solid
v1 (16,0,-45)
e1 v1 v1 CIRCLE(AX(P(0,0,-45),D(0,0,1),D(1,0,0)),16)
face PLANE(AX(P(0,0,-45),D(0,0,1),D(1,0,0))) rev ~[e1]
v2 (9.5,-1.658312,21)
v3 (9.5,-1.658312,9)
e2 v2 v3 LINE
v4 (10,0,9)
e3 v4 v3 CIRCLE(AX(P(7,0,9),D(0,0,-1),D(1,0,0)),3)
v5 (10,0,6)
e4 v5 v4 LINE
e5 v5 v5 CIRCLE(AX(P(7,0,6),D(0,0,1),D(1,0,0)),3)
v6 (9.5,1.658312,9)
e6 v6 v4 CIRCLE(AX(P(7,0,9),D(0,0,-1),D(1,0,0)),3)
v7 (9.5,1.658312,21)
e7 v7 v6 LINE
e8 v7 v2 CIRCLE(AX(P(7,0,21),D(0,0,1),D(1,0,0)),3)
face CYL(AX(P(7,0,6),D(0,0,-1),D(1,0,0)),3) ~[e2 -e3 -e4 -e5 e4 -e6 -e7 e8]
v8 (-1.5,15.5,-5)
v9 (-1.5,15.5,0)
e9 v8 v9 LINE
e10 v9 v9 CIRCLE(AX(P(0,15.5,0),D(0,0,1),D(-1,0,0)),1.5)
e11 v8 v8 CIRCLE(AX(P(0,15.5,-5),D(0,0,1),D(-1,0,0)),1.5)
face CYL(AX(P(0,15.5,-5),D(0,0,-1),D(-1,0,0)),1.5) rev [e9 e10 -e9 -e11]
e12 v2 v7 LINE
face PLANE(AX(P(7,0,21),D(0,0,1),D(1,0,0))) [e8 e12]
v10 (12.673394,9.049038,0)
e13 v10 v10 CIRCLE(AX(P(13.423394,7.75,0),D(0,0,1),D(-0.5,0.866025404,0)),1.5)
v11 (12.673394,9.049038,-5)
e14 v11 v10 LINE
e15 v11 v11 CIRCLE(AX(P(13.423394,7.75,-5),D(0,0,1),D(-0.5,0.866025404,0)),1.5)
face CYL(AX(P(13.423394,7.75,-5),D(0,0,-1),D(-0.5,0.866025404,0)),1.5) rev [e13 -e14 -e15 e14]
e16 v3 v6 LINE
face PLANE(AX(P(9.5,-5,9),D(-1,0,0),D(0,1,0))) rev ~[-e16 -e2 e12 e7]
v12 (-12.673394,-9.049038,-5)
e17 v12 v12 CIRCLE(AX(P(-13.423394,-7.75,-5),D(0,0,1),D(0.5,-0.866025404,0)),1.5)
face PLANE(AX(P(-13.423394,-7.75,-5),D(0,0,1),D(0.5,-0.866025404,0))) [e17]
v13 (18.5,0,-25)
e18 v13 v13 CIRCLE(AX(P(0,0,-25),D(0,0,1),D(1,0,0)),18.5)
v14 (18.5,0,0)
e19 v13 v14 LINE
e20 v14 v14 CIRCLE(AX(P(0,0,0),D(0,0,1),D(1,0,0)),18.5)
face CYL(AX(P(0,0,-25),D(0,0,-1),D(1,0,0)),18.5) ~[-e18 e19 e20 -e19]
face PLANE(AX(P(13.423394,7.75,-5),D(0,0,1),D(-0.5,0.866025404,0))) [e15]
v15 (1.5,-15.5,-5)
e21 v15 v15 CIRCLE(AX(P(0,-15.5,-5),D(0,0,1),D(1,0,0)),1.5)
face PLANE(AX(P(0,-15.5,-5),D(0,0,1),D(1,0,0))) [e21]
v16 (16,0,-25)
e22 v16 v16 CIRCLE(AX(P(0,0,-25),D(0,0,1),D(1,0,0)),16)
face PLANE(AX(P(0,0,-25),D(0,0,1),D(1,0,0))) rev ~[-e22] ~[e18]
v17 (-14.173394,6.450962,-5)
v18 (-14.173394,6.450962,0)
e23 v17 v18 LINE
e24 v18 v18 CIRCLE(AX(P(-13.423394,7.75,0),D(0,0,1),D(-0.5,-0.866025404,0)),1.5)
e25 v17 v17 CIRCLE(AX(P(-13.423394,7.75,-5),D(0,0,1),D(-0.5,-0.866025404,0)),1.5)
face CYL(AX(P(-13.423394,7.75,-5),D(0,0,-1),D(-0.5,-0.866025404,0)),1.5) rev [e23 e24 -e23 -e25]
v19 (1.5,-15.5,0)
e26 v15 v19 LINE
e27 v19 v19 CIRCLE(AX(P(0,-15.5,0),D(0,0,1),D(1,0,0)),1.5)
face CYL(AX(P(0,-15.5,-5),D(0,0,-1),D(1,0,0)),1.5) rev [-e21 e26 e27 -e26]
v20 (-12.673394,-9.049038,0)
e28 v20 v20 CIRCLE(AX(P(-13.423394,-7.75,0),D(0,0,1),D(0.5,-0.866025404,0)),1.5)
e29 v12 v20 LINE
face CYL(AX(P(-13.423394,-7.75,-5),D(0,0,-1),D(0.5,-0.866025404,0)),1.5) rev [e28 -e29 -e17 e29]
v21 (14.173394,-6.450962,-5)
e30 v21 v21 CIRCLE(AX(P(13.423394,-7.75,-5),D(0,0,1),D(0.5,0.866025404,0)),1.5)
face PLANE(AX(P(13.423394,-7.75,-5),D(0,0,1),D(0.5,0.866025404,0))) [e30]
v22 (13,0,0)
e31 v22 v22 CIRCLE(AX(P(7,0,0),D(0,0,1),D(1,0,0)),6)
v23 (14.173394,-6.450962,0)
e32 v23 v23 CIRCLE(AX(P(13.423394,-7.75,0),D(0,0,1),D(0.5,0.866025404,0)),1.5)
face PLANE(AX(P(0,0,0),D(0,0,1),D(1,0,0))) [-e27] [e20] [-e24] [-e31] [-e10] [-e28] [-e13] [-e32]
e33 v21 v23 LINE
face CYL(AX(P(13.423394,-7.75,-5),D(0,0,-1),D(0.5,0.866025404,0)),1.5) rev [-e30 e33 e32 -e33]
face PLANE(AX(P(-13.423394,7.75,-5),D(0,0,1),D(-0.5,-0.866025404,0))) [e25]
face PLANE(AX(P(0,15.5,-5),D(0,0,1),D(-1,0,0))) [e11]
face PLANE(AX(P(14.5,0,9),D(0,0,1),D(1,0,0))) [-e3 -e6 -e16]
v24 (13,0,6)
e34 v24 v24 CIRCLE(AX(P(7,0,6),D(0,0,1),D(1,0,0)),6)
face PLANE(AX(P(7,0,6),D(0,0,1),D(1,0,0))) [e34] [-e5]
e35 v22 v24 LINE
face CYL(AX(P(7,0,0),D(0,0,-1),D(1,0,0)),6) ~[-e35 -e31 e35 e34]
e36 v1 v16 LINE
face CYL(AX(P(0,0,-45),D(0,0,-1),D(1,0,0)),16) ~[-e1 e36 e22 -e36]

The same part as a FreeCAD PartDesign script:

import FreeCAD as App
import Part
import Sketcher

V = App.Vector
Q = App.Units.Quantity

doc = App.newDocument("Part")
params = doc.addObject("Spreadsheet::Sheet", "Params")
for row, (alias, value) in enumerate([
    ("sketch1_width", "10 mm"),
    ("pad1_length", "12 mm"),
    ("sketch2_diameter", "3 mm"),
    ("pad2_length", "5 mm"),
    ("sketch3_diameter", "37 mm"),
    ("pad3_length", "25 mm"),
    ("sketch4_diameter", "12 mm"),
    ("pad4_length", "6 mm"),
    ("sketch5_diameter", "6 mm"),
    ("pad5_length", "15 mm"),
    ("sketch6_diameter", "32 mm"),
    ("pad6_length", "20 mm"),
], start=1):
    params.set(f"A{row}", alias)
    params.set(f"B{row}", "=" + value)
    params.setAlias(f"B{row}", alias)

body = doc.addObject("PartDesign::Body", "Body")

# Sketch on XY plane
sketch1 = body.newObject("Sketcher::SketchObject", "Sketch")
sketch1.AttachmentSupport = (doc.getObject("XY_Plane"), [""])
sketch1.MapMode = "FlatFace"
sketch1.AttachmentOffset = App.Placement(V(0, 0, 9), App.Rotation())
sketch1.addGeometry(Part.LineSegment(V(9.5, 5, 0), V(9.5, -5, 0)), False)
sketch1.addGeometry(Part.LineSegment(V(9.5, -5, 0), V(19.5, -5, 0)), False)
sketch1.addGeometry(Part.LineSegment(V(19.5, -5, 0), V(19.5, 5, 0)), False)
sketch1.addGeometry(Part.LineSegment(V(19.5, 5, 0), V(9.5, 5, 0)), False)
sketch1.addConstraint(Sketcher.Constraint("Coincident", 0, 2, 1, 1))
sketch1.addConstraint(Sketcher.Constraint("Coincident", 1, 2, 2, 1))
sketch1.addConstraint(Sketcher.Constraint("Coincident", 2, 2, 3, 1))
sketch1.addConstraint(Sketcher.Constraint("Coincident", 3, 2, 0, 1))
sketch1.addConstraint(Sketcher.Constraint("Vertical", 0))
sketch1.addConstraint(Sketcher.Constraint("Horizontal", 1))
sketch1.addConstraint(Sketcher.Constraint("Vertical", 2))
sketch1.addConstraint(Sketcher.Constraint("Horizontal", 3))
sketch1.addConstraint(Sketcher.Constraint("Equal", 3, 0))
sketch1.addConstraint(Sketcher.Constraint("DistanceX", 1, 1, 1, 2, Q("10 mm")))
sketch1.addConstraint(Sketcher.Constraint("DistanceY", 0, 2, -1, 1, Q("5 mm")))
sketch1.addConstraint(Sketcher.Constraint("DistanceX", -1, 1, 0, 2, Q("9.5 mm")))
sketch1.setExpression("Constraints[9]", "Params.sketch1_width")
pad1 = body.newObject("PartDesign::Pad", "Pad")
pad1.Profile = sketch1
pad1.setExpression("Length", "Params.pad1_length")
body2 = doc.addObject("PartDesign::Body", "Body001")

# Sketch on XY plane
sketch2 = body2.newObject("Sketcher::SketchObject", "Sketch001")
sketch2.AttachmentSupport = (doc.getObject("XY_Plane001"), [""])
sketch2.MapMode = "FlatFace"
sketch2.AttachmentOffset = App.Placement(V(0, 0, -5), App.Rotation())
sketch2.addGeometry(Part.Circle(V(0, -15.5, 0), V(0, 0, 1), 1.5), False)
sketch2.addConstraint(Sketcher.Constraint("PointOnObject", 0, 3, -2))
sketch2.addConstraint(Sketcher.Constraint("Diameter", 0, Q("3 mm")))
sketch2.addConstraint(Sketcher.Constraint("DistanceY", 0, 3, -1, 1, Q("15.5 mm")))
sketch2.setExpression("Constraints[1]", "Params.sketch2_diameter")
pad2 = body2.newObject("PartDesign::Pad", "Pad001")
pad2.Profile = sketch2
pad2.setExpression("Length", "Params.pad2_length")
body3 = doc.addObject("PartDesign::Body", "Body002")
body3.AllowCompound = True
doc.recompute()

body3.BaseFeature = body2
doc.recompute()

body4 = doc.addObject("PartDesign::Body", "Body003")
body4.BaseFeature = body2
body4.Placement = App.Placement(V(0, 0, 0), App.Rotation(V(0, 0, 1), 60))
boolean = body3.newObject("PartDesign::Boolean", "Boolean")
boolean.Type = "Fuse"
boolean.addObjects([body4])
doc.recompute()

body5 = doc.addObject("PartDesign::Body", "Body004")
body5.BaseFeature = body2
body5.Placement = App.Placement(V(0, 0, 0), App.Rotation(V(0, 0, 1), 120))
boolean2 = body3.newObject("PartDesign::Boolean", "Boolean001")
boolean2.Type = "Fuse"
boolean2.addObjects([body5])
doc.recompute()

body6 = doc.addObject("PartDesign::Body", "Body005")
body6.BaseFeature = body2
body6.Placement = App.Placement(V(0, 0, 0), App.Rotation(V(0, 0, 1), 180))
boolean3 = body3.newObject("PartDesign::Boolean", "Boolean002")
boolean3.Type = "Fuse"
boolean3.addObjects([body6])
doc.recompute()

body7 = doc.addObject("PartDesign::Body", "Body006")
body7.BaseFeature = body2
body7.Placement = App.Placement(V(0, 0, 0), App.Rotation(V(0, 0, 1), 240))
boolean4 = body3.newObject("PartDesign::Boolean", "Boolean003")
boolean4.Type = "Fuse"
boolean4.addObjects([body7])
doc.recompute()

body2.Placement = App.Placement(V(0, 0, 0), App.Rotation(V(0, 0, 1), 300))
boolean5 = body3.newObject("PartDesign::Boolean", "Boolean004")
boolean5.Type = "Fuse"
boolean5.addObjects([body2])
doc.recompute()

boolean6 = body3.newObject("PartDesign::Boolean", "Boolean005")
boolean6.Type = "Fuse"
boolean6.addObjects([body])
body8 = doc.addObject("PartDesign::Body", "Body007")

# Sketch on XY plane
sketch3 = body8.newObject("Sketcher::SketchObject", "Sketch002")
sketch3.AttachmentSupport = (doc.getObject("XY_Plane007"), [""])
sketch3.MapMode = "FlatFace"
sketch3.AttachmentOffset = App.Placement(V(0, 0, -25), App.Rotation())
sketch3.addGeometry(Part.Circle(V(0, 0, 0), V(0, 0, 1), 18.5), False)
sketch3.addConstraint(Sketcher.Constraint("Coincident", 0, 3, -1, 1))
sketch3.addConstraint(Sketcher.Constraint("Diameter", 0, Q("37 mm")))
sketch3.setExpression("Constraints[1]", "Params.sketch3_diameter")
pad3 = body8.newObject("PartDesign::Pad", "Pad002")
pad3.Profile = sketch3
pad3.setExpression("Length", "Params.pad3_length")
body9 = doc.addObject("PartDesign::Body", "Body008")

# Sketch on XY plane
sketch4 = body9.newObject("Sketcher::SketchObject", "Sketch003")
sketch4.AttachmentSupport = (doc.getObject("XY_Plane008"), [""])
sketch4.MapMode = "FlatFace"
sketch4.addGeometry(Part.Circle(V(7, 0, 0), V(0, 0, 1), 6), False)
sketch4.addConstraint(Sketcher.Constraint("PointOnObject", 0, 3, -1))
sketch4.addConstraint(Sketcher.Constraint("Diameter", 0, Q("12 mm")))
sketch4.addConstraint(Sketcher.Constraint("DistanceX", -1, 1, 0, 3, Q("7 mm")))
sketch4.setExpression("Constraints[1]", "Params.sketch4_diameter")
pad4 = body9.newObject("PartDesign::Pad", "Pad003")
pad4.Profile = sketch4
pad4.setExpression("Length", "Params.pad4_length")
body10 = doc.addObject("PartDesign::Body", "Body009")

# Sketch on XY plane
sketch5 = body10.newObject("Sketcher::SketchObject", "Sketch004")
sketch5.AttachmentSupport = (doc.getObject("XY_Plane009"), [""])
sketch5.MapMode = "FlatFace"
sketch5.AttachmentOffset = App.Placement(V(0, 0, 6), App.Rotation())
sketch5.addGeometry(Part.Circle(V(7, 0, 0), V(0, 0, 1), 3), False)
sketch5.addConstraint(Sketcher.Constraint("PointOnObject", 0, 3, -1))
sketch5.addConstraint(Sketcher.Constraint("Diameter", 0, Q("6 mm")))
sketch5.addConstraint(Sketcher.Constraint("DistanceX", -1, 1, 0, 3, Q("7 mm")))
sketch5.setExpression("Constraints[1]", "Params.sketch5_diameter")
pad5 = body10.newObject("PartDesign::Pad", "Pad004")
pad5.Profile = sketch5
pad5.setExpression("Length", "Params.pad5_length")
body11 = doc.addObject("PartDesign::Body", "Body010")

# Sketch on XY plane
sketch6 = body11.newObject("Sketcher::SketchObject", "Sketch005")
sketch6.AttachmentSupport = (doc.getObject("XY_Plane010"), [""])
sketch6.MapMode = "FlatFace"
sketch6.AttachmentOffset = App.Placement(V(0, 0, -45), App.Rotation())
sketch6.addGeometry(Part.Circle(V(0, 0, 0), V(0, 0, 1), 16), False)
sketch6.addConstraint(Sketcher.Constraint("Coincident", 0, 3, -1, 1))
sketch6.addConstraint(Sketcher.Constraint("Diameter", 0, Q("32 mm")))
sketch6.setExpression("Constraints[1]", "Params.sketch6_diameter")
pad6 = body11.newObject("PartDesign::Pad", "Pad005")
pad6.Profile = sketch6
pad6.setExpression("Length", "Params.pad6_length")
doc.recompute()

boolean7 = body11.newObject("PartDesign::Boolean", "Boolean006")
boolean7.Type = "Fuse"
boolean7.addObjects([body8])
doc.recompute()

boolean8 = body11.newObject("PartDesign::Boolean", "Boolean007")
boolean8.Type = "Fuse"
boolean8.addObjects([body9])
doc.recompute()

boolean9 = body11.newObject("PartDesign::Boolean", "Boolean008")
boolean9.Type = "Fuse"
boolean9.addObjects([body10])
doc.recompute()

boolean10 = body11.newObject("PartDesign::Boolean", "Boolean009")
boolean10.Type = "Cut"
boolean10.addObjects([body3])

doc.recompute()
